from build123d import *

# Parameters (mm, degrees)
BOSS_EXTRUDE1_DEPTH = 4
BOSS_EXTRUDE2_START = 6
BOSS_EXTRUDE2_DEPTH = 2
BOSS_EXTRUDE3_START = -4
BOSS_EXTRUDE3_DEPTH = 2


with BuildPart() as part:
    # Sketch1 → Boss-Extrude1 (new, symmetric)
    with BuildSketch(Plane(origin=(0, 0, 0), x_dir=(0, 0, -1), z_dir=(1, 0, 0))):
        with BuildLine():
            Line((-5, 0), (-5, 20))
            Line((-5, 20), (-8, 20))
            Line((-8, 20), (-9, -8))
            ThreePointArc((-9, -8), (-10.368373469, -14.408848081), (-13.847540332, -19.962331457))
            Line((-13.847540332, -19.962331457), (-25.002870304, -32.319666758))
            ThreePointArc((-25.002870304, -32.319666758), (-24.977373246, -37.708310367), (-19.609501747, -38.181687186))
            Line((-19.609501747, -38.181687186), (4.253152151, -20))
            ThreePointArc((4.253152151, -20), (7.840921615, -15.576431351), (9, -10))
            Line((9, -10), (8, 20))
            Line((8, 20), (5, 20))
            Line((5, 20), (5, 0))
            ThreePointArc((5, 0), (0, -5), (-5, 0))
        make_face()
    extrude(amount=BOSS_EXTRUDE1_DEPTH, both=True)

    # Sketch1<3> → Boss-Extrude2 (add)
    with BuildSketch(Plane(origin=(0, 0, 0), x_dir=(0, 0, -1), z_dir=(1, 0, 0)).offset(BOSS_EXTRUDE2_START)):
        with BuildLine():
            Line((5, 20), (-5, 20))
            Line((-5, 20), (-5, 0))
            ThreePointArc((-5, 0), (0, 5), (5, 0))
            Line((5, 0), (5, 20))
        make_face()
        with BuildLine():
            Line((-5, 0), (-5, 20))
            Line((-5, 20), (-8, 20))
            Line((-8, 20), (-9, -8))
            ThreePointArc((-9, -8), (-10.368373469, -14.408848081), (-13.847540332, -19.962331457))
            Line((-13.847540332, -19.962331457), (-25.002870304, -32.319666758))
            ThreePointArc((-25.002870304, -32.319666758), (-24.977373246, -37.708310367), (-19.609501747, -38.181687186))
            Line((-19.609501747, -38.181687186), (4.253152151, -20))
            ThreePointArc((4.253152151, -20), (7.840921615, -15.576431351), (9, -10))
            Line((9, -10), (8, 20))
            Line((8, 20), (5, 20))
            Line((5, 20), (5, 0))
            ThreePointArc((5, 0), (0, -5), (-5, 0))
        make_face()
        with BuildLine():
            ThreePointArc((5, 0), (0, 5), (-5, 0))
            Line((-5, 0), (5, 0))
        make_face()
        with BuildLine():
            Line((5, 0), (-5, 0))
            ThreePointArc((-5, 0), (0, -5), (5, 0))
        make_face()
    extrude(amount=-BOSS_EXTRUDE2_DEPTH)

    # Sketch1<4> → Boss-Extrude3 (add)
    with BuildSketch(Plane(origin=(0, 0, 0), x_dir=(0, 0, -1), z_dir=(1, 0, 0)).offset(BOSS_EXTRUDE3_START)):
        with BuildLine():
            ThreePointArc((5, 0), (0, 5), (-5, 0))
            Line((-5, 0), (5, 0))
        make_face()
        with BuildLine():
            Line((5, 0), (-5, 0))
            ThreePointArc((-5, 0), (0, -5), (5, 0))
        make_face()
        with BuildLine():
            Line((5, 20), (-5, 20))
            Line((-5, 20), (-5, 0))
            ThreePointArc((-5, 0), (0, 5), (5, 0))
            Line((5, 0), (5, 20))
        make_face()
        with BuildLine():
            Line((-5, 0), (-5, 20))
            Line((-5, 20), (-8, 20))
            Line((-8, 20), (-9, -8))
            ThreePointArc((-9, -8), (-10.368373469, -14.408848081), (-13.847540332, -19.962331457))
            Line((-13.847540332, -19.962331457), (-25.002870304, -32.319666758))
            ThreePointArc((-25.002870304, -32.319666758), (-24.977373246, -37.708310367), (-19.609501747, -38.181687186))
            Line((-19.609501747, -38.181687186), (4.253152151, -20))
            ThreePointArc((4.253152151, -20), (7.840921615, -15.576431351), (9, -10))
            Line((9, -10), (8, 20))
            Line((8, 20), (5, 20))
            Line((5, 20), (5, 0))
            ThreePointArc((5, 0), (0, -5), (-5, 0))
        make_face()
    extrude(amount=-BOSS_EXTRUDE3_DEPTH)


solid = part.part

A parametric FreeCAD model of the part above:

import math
import FreeCAD as App
import Part
import Sketcher
Q = App.Units.Quantity

doc = App.newDocument("Part")
params = doc.addObject("Spreadsheet::Sheet", "Params")
for row, (alias, value) in enumerate([
    ("sketch1_radius", "4 mm"),
    ("sketch1_radius2", "5 mm"),
    ("sketch1_width", "20 mm"),
    ("sketch1_height", "3 mm"),
    ("sketch1_length", "30 mm"),
    ("pad1_length", "8 mm"),
    ("sketch2_radius", "4 mm"),
    ("sketch2_height", "16 mm"),
    ("sketch2_length", "30 mm"),
    ("pad2_length", "2 mm"),
    ("sketch3_radius", "4 mm"),
    ("sketch3_height", "16 mm"),
    ("sketch3_length", "30 mm"),
    ("pad3_length", "2 mm"),
], start=1):
    params.set(f"A{row}", alias)
    params.set(f"B{row}", "=" + value)
    params.setAlias(f"B{row}", alias)

body = doc.addObject("PartDesign::Body", "Body")

# Sketch on YZ plane
sketch1 = doc.addObject("Sketcher::SketchObject", "Sketch")
body.addObject(sketch1)
sketch1.AttachmentSupport = (doc.YZ_Plane, [""])
sketch1.MapMode = "FlatFace"
sketch1.addGeometry([
    Part.LineSegment(App.Vector(0, 5, 0), App.Vector(20, 5, 0)),  # 0
    Part.LineSegment(App.Vector(20, 5, 0), App.Vector(20, 8, 0)),  # 1
    Part.LineSegment(App.Vector(20, 8, 0), App.Vector(-8, 9, 0)),  # 2
    Part.ArcOfCircle(Part.Circle(App.Vector(-7.3, 27.8, 0), App.Vector(0, 0, 1), 18.9), math.radians(-132), math.radians(-92)),  # 3
    Part.LineSegment(App.Vector(-20, 13.8, 0), App.Vector(-32.3, 25, 0)),  # 4
    Part.ArcOfCircle(Part.Circle(App.Vector(-35, 22, 0), App.Vector(0, 0, 1), 4), math.radians(48), math.radians(217)),  # 5
    Part.LineSegment(App.Vector(-38.2, 19.6, 0), App.Vector(-20, -4.3, 0)),  # 6
    Part.ArcOfCircle(Part.Circle(App.Vector(-10.4, 3.1, 0), App.Vector(0, 0, 1), 12.1), math.radians(-143), math.radians(-88)),  # 7
    Part.LineSegment(App.Vector(-10, -9, 0), App.Vector(20, -8, 0)),  # 8
    Part.LineSegment(App.Vector(20, -8, 0), App.Vector(20, -5, 0)),  # 9
    Part.LineSegment(App.Vector(20, -5, 0), App.Vector(0, -5, 0)),  # 10
    Part.ArcOfCircle(Part.Circle(App.Vector(0, 0, 0), App.Vector(0, 0, 1), 5), math.radians(90), math.radians(270)),  # 11
], False)
sketch1.addConstraint([
    Sketcher.Constraint("Coincident", 0, 2, 1, 1),
    Sketcher.Constraint("Coincident", 1, 2, 2, 1),
    Sketcher.Constraint("Tangent", 2, 2, 3, 2),
    Sketcher.Constraint("Tangent", 3, 1, 4, 1),
    Sketcher.Constraint("Tangent", 4, 2, 5, 1),
    Sketcher.Constraint("Tangent", 5, 2, 6, 1),
    Sketcher.Constraint("Tangent", 6, 2, 7, 1),
    Sketcher.Constraint("Tangent", 7, 2, 8, 1),
    Sketcher.Constraint("Coincident", 8, 2, 9, 1),
    Sketcher.Constraint("Coincident", 9, 2, 10, 1),
    Sketcher.Constraint("Tangent", 10, 2, 11, 2),
    Sketcher.Constraint("Tangent", 11, 1, 0, 1),
    Sketcher.Constraint("Horizontal", 0),
    Sketcher.Constraint("Vertical", 1),
    Sketcher.Constraint("Vertical", 9),
    Sketcher.Constraint("Horizontal", 10),
    Sketcher.Constraint("Coincident", 11, 3, -1, 1),
    Sketcher.Constraint("Symmetric", 1, 2, 8, 2, -1),
    Sketcher.Constraint("Radius", 5, Q("4 mm")),
    Sketcher.Constraint("Radius", 11, Q("5 mm")),
    Sketcher.Constraint("DistanceX", 0, 1, 0, 2, Q("20 mm")),
    Sketcher.Constraint("DistanceY", 1, 1, 1, 2, Q("3 mm")),
    Sketcher.Constraint("Distance", 6, Q("30 mm")),
    Sketcher.Constraint("DistanceX", 5, 3, -1, 1, Q("35 mm")),
    Sketcher.Constraint("DistanceX", 2, 2, -1, 1, Q("8 mm")),
    Sketcher.Constraint("DistanceY", -1, 1, 2, 2, Q("9 mm")),
    Sketcher.Constraint("DistanceX", 6, 2, -1, 1, Q("20 mm")),
    Sketcher.Constraint("DistanceX", 7, 2, -1, 1, Q("10 mm")),
    Sketcher.Constraint("DistanceY", 7, 2, -1, 1, Q("9 mm")),
    Sketcher.Constraint("Radius", 3, Q("18.856378 mm")),
])
sketch1.setExpression("Constraints[18]", "Params.sketch1_radius")
sketch1.setExpression("Constraints[19]", "Params.sketch1_radius2")
sketch1.setExpression("Constraints[20]", "Params.sketch1_width")
sketch1.setExpression("Constraints[21]", "Params.sketch1_height")
sketch1.setExpression("Constraints[22]", "Params.sketch1_length")
pad1 = doc.addObject("PartDesign::Pad", "Pad")
body.addObject(pad1)
pad1.Profile = sketch1
pad1.setExpression("Length", "Params.pad1_length")
pad1.Midplane = True

# Sketch on YZ plane
sketch2 = doc.addObject("Sketcher::SketchObject", "Sketch001")
body.addObject(sketch2)
sketch2.AttachmentSupport = (doc.YZ_Plane, [""])
sketch2.MapMode = "FlatFace"
sketch2.AttachmentOffset = App.Placement(App.Vector(0, 0, 6), App.Rotation())
sketch2.addGeometry([
    Part.LineSegment(App.Vector(20, 8, 0), App.Vector(-8, 9, 0)),  # 0
    Part.ArcOfCircle(Part.Circle(App.Vector(-7.3, 27.8, 0), App.Vector(0, 0, 1), 18.9), math.radians(-132), math.radians(-92)),  # 1
    Part.LineSegment(App.Vector(-20, 13.8, 0), App.Vector(-32.3, 25, 0)),  # 2
    Part.ArcOfCircle(Part.Circle(App.Vector(-35, 22, 0), App.Vector(0, 0, 1), 4), math.radians(48), math.radians(217)),  # 3
    Part.LineSegment(App.Vector(-38.2, 19.6, 0), App.Vector(-20, -4.3, 0)),  # 4
    Part.ArcOfCircle(Part.Circle(App.Vector(-10.4, 3.1, 0), App.Vector(0, 0, 1), 12.1), math.radians(-143), math.radians(-88)),  # 5
    Part.LineSegment(App.Vector(-10, -9, 0), App.Vector(20, -8, 0)),  # 6
    Part.LineSegment(App.Vector(20, -8, 0), App.Vector(20, 8, 0)),  # 7
], False)
sketch2.addConstraint([
    Sketcher.Constraint("Tangent", 0, 2, 1, 2),
    Sketcher.Constraint("Tangent", 1, 1, 2, 1),
    Sketcher.Constraint("Tangent", 2, 2, 3, 1),
    Sketcher.Constraint("Tangent", 3, 2, 4, 1),
    Sketcher.Constraint("Tangent", 4, 2, 5, 1),
    Sketcher.Constraint("Tangent", 5, 2, 6, 1),
    Sketcher.Constraint("Coincident", 6, 2, 7, 1),
    Sketcher.Constraint("Coincident", 7, 2, 0, 1),
    Sketcher.Constraint("Vertical", 7),
    Sketcher.Constraint("Radius", 3, Q("4 mm")),
    Sketcher.Constraint("DistanceY", 7, 1, 7, 2, Q("16 mm")),
    Sketcher.Constraint("Distance", 4, Q("30 mm")),
    Sketcher.Constraint("DistanceX", 3, 3, -1, 1, Q("35 mm")),
    Sketcher.Constraint("DistanceX", 0, 2, -1, 1, Q("8 mm")),
    Sketcher.Constraint("DistanceY", -1, 1, 0, 2, Q("9 mm")),
    Sketcher.Constraint("DistanceX", 4, 2, -1, 1, Q("20 mm")),
    Sketcher.Constraint("DistanceX", 5, 2, -1, 1, Q("10 mm")),
    Sketcher.Constraint("DistanceY", 5, 2, -1, 1, Q("9 mm")),
    Sketcher.Constraint("DistanceX", -1, 1, 6, 2, Q("20 mm")),
    Sketcher.Constraint("DistanceY", 6, 2, -1, 1, Q("8 mm")),
    Sketcher.Constraint("Radius", 1, Q("18.856378 mm")),
])
sketch2.setExpression("Constraints[9]", "Params.sketch2_radius")
sketch2.setExpression("Constraints[10]", "Params.sketch2_height")
sketch2.setExpression("Constraints[11]", "Params.sketch2_length")
pad2 = doc.addObject("PartDesign::Pad", "Pad001")
body.addObject(pad2)
pad2.Profile = sketch2
pad2.setExpression("Length", "Params.pad2_length")
pad2.Reversed = True

# Sketch on YZ plane
sketch3 = doc.addObject("Sketcher::SketchObject", "Sketch002")
body.addObject(sketch3)
sketch3.AttachmentSupport = (doc.YZ_Plane, [""])
sketch3.MapMode = "FlatFace"
sketch3.AttachmentOffset = App.Placement(App.Vector(0, 0, -4), App.Rotation())
sketch3.addGeometry([
    Part.LineSegment(App.Vector(20, 8, 0), App.Vector(-8, 9, 0)),  # 0
    Part.ArcOfCircle(Part.Circle(App.Vector(-7.3, 27.8, 0), App.Vector(0, 0, 1), 18.9), math.radians(-132), math.radians(-92)),  # 1
    Part.LineSegment(App.Vector(-20, 13.8, 0), App.Vector(-32.3, 25, 0)),  # 2
    Part.ArcOfCircle(Part.Circle(App.Vector(-35, 22, 0), App.Vector(0, 0, 1), 4), math.radians(48), math.radians(217)),  # 3
    Part.LineSegment(App.Vector(-38.2, 19.6, 0), App.Vector(-20, -4.3, 0)),  # 4
    Part.ArcOfCircle(Part.Circle(App.Vector(-10.4, 3.1, 0), App.Vector(0, 0, 1), 12.1), math.radians(-143), math.radians(-88)),  # 5
    Part.LineSegment(App.Vector(-10, -9, 0), App.Vector(20, -8, 0)),  # 6
    Part.LineSegment(App.Vector(20, -8, 0), App.Vector(20, 8, 0)),  # 7
], False)
sketch3.addConstraint([
    Sketcher.Constraint("Tangent", 0, 2, 1, 2),
    Sketcher.Constraint("Tangent", 1, 1, 2, 1),
    Sketcher.Constraint("Tangent", 2, 2, 3, 1),
    Sketcher.Constraint("Tangent", 3, 2, 4, 1),
    Sketcher.Constraint("Tangent", 4, 2, 5, 1),
    Sketcher.Constraint("Tangent", 5, 2, 6, 1),
    Sketcher.Constraint("Coincident", 6, 2, 7, 1),
    Sketcher.Constraint("Coincident", 7, 2, 0, 1),
    Sketcher.Constraint("Vertical", 7),
    Sketcher.Constraint("Radius", 3, Q("4 mm")),
    Sketcher.Constraint("DistanceY", 7, 1, 7, 2, Q("16 mm")),
    Sketcher.Constraint("Distance", 4, Q("30 mm")),
    Sketcher.Constraint("DistanceX", 3, 3, -1, 1, Q("35 mm")),
    Sketcher.Constraint("DistanceX", 0, 2, -1, 1, Q("8 mm")),
    Sketcher.Constraint("DistanceY", -1, 1, 0, 2, Q("9 mm")),
    Sketcher.Constraint("DistanceX", 4, 2, -1, 1, Q("20 mm")),
    Sketcher.Constraint("DistanceX", 5, 2, -1, 1, Q("10 mm")),
    Sketcher.Constraint("DistanceY", 5, 2, -1, 1, Q("9 mm")),
    Sketcher.Constraint("DistanceX", -1, 1, 6, 2, Q("20 mm")),
    Sketcher.Constraint("DistanceY", 6, 2, -1, 1, Q("8 mm")),
    Sketcher.Constraint("Radius", 1, Q("18.856378 mm")),
])
sketch3.setExpression("Constraints[9]", "Params.sketch3_radius")
sketch3.setExpression("Constraints[10]", "Params.sketch3_height")
sketch3.setExpression("Constraints[11]", "Params.sketch3_length")
pad3 = doc.addObject("PartDesign::Pad", "Pad002")
body.addObject(pad3)
pad3.Profile = sketch3
pad3.setExpression("Length", "Params.pad3_length")
pad3.Reversed = True

doc.recompute()
